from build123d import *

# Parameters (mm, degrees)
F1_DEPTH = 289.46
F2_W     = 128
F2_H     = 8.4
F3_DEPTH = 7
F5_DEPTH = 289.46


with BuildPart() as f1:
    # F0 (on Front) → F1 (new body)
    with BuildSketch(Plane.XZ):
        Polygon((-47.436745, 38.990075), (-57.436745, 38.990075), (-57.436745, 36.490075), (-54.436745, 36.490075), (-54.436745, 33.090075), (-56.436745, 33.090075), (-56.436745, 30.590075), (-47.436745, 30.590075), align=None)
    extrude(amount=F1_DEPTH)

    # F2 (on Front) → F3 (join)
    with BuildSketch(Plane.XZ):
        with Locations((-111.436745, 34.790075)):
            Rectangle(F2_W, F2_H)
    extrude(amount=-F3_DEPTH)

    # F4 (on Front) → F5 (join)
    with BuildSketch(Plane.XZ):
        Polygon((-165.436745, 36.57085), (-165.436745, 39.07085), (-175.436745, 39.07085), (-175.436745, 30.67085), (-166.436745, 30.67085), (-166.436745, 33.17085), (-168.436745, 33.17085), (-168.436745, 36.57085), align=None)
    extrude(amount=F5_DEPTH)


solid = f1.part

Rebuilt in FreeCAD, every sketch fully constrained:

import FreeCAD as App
import Part
import Sketcher

V = App.Vector

doc = App.newDocument("Part")
body = doc.addObject("PartDesign::Body", "Body")

sketch1 = doc.addObject("Sketcher::SketchObject", "Sketch")
body.addObject(sketch1)
sketch1.AttachmentSupport = (doc.XZ_Plane, [""])
sketch1.MapMode = "FlatFace"
sketch1.addGeometry([
    Part.LineSegment(V(-47.436745, 38.990075, 0), V(-57.436745, 38.990075, 0)),
    Part.LineSegment(V(-57.436745, 38.990075, 0), V(-57.436745, 36.490075, 0)),
    Part.LineSegment(V(-57.436745, 36.490075, 0), V(-54.436745, 36.490075, 0)),
    Part.LineSegment(V(-54.436745, 36.490075, 0), V(-54.436745, 33.090075, 0)),
    Part.LineSegment(V(-54.436745, 33.090075, 0), V(-56.436745, 33.090075, 0)),
    Part.LineSegment(V(-56.436745, 33.090075, 0), V(-56.436745, 30.590075, 0)),
    Part.LineSegment(V(-56.436745, 30.590075, 0), V(-47.436745, 30.590075, 0)),
    Part.LineSegment(V(-47.436745, 30.590075, 0), V(-47.436745, 38.990075, 0)),
], False)
sketch1.addConstraint([
    Sketcher.Constraint("Coincident", 0, 2, 1, 1),
    Sketcher.Constraint("Coincident", 1, 2, 2, 1),
    Sketcher.Constraint("Coincident", 2, 2, 3, 1),
    Sketcher.Constraint("Coincident", 3, 2, 4, 1),
    Sketcher.Constraint("Coincident", 4, 2, 5, 1),
    Sketcher.Constraint("Coincident", 5, 2, 6, 1),
    Sketcher.Constraint("Coincident", 6, 2, 7, 1),
    Sketcher.Constraint("Coincident", 7, 2, 0, 1),
    Sketcher.Constraint("Horizontal", 0),
    Sketcher.Constraint("Vertical", 1),
    Sketcher.Constraint("Horizontal", 2),
    Sketcher.Constraint("Vertical", 3),
    Sketcher.Constraint("Horizontal", 4),
    Sketcher.Constraint("Vertical", 5),
    Sketcher.Constraint("Horizontal", 6),
    Sketcher.Constraint("Vertical", 7),
    Sketcher.Constraint("Equal", 1, 5),
    Sketcher.Constraint("DistanceX", 0, 2, 0, 1, 10.0),
    Sketcher.Constraint("DistanceX", 2, 1, 2, 2, 3.0),
    Sketcher.Constraint("DistanceX", 4, 2, 4, 1, 2.0),
    Sketcher.Constraint("DistanceY", 1, 2, 1, 1, 2.5),
    Sketcher.Constraint("DistanceY", 3, 2, 3, 1, 3.4),
    Sketcher.Constraint("DistanceX", 0, 2, -1, 1, 57.436745),
    Sketcher.Constraint("DistanceY", -1, 1, 0, 2, 38.990075),
])
pad1 = doc.addObject("PartDesign::Pad", "Pad")
body.addObject(pad1)
pad1.Profile = sketch1
pad1.Length = 289.46

sketch2 = doc.addObject("Sketcher::SketchObject", "Sketch001")
body.addObject(sketch2)
sketch2.AttachmentSupport = (doc.XZ_Plane, [""])
sketch2.MapMode = "FlatFace"
sketch2.addGeometry([
    Part.LineSegment(V(-175.436745, 38.990075, 0), V(-175.436745, 30.590075, 0)),
    Part.LineSegment(V(-175.436745, 30.590075, 0), V(-47.436745, 30.590075, 0)),
    Part.LineSegment(V(-47.436745, 30.590075, 0), V(-47.436745, 38.990075, 0)),
    Part.LineSegment(V(-47.436745, 38.990075, 0), V(-175.436745, 38.990075, 0)),
], False)
sketch2.addConstraint([
    Sketcher.Constraint("Coincident", 0, 2, 1, 1),
    Sketcher.Constraint("Coincident", 1, 2, 2, 1),
    Sketcher.Constraint("Coincident", 2, 2, 3, 1),
    Sketcher.Constraint("Coincident", 3, 2, 0, 1),
    Sketcher.Constraint("Vertical", 0),
    Sketcher.Constraint("Horizontal", 1),
    Sketcher.Constraint("Vertical", 2),
    Sketcher.Constraint("Horizontal", 3),
    Sketcher.Constraint("DistanceX", 1, 1, 1, 2, 128.0),
    Sketcher.Constraint("DistanceY", 0, 2, 0, 1, 8.4),
    Sketcher.Constraint("DistanceX", 0, 2, -1, 1, 175.436745),
    Sketcher.Constraint("DistanceY", -1, 1, 0, 2, 30.590075),
])
pad2 = doc.addObject("PartDesign::Pad", "Pad001")
body.addObject(pad2)
pad2.Profile = sketch2
pad2.Length = 7
pad2.Reversed = True

sketch3 = doc.addObject("Sketcher::SketchObject", "Sketch002")
body.addObject(sketch3)
sketch3.AttachmentSupport = (doc.XZ_Plane, [""])
sketch3.MapMode = "FlatFace"
sketch3.addGeometry([
    Part.LineSegment(V(-165.436745, 36.57085, 0), V(-165.436745, 39.07085, 0)),
    Part.LineSegment(V(-165.436745, 39.07085, 0), V(-175.436745, 39.07085, 0)),
    Part.LineSegment(V(-175.436745, 39.07085, 0), V(-175.436745, 30.67085, 0)),
    Part.LineSegment(V(-175.436745, 30.67085, 0), V(-166.436745, 30.67085, 0)),
    Part.LineSegment(V(-166.436745, 30.67085, 0), V(-166.436745, 33.17085, 0)),
    Part.LineSegment(V(-166.436745, 33.17085, 0), V(-168.436745, 33.17085, 0)),
    Part.LineSegment(V(-168.436745, 33.17085, 0), V(-168.436745, 36.57085, 0)),
    Part.LineSegment(V(-168.436745, 36.57085, 0), V(-165.436745, 36.57085, 0)),
], False)
sketch3.addConstraint([
    Sketcher.Constraint("Coincident", 0, 2, 1, 1),
    Sketcher.Constraint("Coincident", 1, 2, 2, 1),
    Sketcher.Constraint("Coincident", 2, 2, 3, 1),
    Sketcher.Constraint("Coincident", 3, 2, 4, 1),
    Sketcher.Constraint("Coincident", 4, 2, 5, 1),
    Sketcher.Constraint("Coincident", 5, 2, 6, 1),
    Sketcher.Constraint("Coincident", 6, 2, 7, 1),
    Sketcher.Constraint("Coincident", 7, 2, 0, 1),
    Sketcher.Constraint("Vertical", 0),
    Sketcher.Constraint("Horizontal", 1),
    Sketcher.Constraint("Vertical", 2),
    Sketcher.Constraint("Horizontal", 3),
    Sketcher.Constraint("Vertical", 4),
    Sketcher.Constraint("Horizontal", 5),
    Sketcher.Constraint("Vertical", 6),
    Sketcher.Constraint("Horizontal", 7),
    Sketcher.Constraint("Equal", 0, 4),
    Sketcher.Constraint("DistanceX", 1, 2, 1, 1, 10.0),
    Sketcher.Constraint("DistanceX", 3, 1, 3, 2, 9.0),
    Sketcher.Constraint("DistanceX", 5, 2, 5, 1, 2.0),
    Sketcher.Constraint("DistanceY", 0, 1, 0, 2, 2.5),
    Sketcher.Constraint("DistanceY", 2, 2, 2, 1, 8.4),
    Sketcher.Constraint("DistanceY", -1, 1, 0, 2, 39.07085),
    Sketcher.Constraint("DistanceX", 0, 2, -1, 1, 165.436745),
])
pad3 = doc.addObject("PartDesign::Pad", "Pad002")
body.addObject(pad3)
pad3.Profile = sketch3
pad3.Length = 289.46

doc.recompute()
